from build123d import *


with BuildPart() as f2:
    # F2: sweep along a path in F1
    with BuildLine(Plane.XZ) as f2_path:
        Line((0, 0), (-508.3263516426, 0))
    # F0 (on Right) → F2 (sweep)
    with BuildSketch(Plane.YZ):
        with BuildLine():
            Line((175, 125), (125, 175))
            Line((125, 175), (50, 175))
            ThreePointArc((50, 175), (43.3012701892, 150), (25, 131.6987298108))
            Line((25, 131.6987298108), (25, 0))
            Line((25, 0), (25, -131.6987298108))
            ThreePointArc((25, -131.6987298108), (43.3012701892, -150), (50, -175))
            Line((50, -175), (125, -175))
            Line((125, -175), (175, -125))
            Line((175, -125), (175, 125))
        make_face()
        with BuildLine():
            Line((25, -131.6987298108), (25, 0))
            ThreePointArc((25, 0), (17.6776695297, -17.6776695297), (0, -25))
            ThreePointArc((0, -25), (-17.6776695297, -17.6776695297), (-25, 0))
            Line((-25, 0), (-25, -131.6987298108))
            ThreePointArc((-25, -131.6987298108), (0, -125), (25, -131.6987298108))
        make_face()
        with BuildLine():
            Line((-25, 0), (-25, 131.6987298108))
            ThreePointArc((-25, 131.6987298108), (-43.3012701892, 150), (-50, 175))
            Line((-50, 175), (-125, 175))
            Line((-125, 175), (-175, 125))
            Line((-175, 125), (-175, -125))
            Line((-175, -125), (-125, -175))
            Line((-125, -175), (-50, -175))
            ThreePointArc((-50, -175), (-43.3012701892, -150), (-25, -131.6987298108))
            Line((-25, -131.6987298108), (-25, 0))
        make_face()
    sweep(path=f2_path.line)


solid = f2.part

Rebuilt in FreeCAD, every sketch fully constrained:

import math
import FreeCAD as App
import Part
import Sketcher

V = App.Vector

doc = App.newDocument("Part")
body = doc.addObject("PartDesign::Body", "Body")

sketch1 = body.newObject("Sketcher::SketchObject", "Sketch")
sketch1.AttachmentSupport = (doc.getObject("YZ_Plane"), [""])
sketch1.MapMode = "FlatFace"
sketch1.addGeometry(Part.LineSegment(V(175, 125, 0), V(125, 175, 0)), False)
sketch1.addGeometry(Part.LineSegment(V(125, 175, 0), V(50, 175, 0)), False)
sketch1.addGeometry(Part.ArcOfCircle(Part.Circle(V(0, 175, 0), V(0, 0, 1), 50), math.radians(-60), math.radians(0)), False)
sketch1.addGeometry(Part.LineSegment(V(25, 131.69873, 0), V(25, 0, 0)), False)
sketch1.addGeometry(Part.ArcOfCircle(Part.Circle(V(0, 0, 0), V(0, 0, 1), 25), math.radians(-90), math.radians(0)), False)
sketch1.addGeometry(Part.ArcOfCircle(Part.Circle(V(0, 0, 0), V(0, 0, 1), 25), math.radians(180), math.radians(270)), False)
sketch1.addGeometry(Part.LineSegment(V(-25, 0, 0), V(-25, 131.69873, 0)), False)
sketch1.addGeometry(Part.ArcOfCircle(Part.Circle(V(0, 175, 0), V(0, 0, 1), 50), math.radians(180), math.radians(240)), False)
sketch1.addGeometry(Part.LineSegment(V(-50, 175, 0), V(-125, 175, 0)), False)
sketch1.addGeometry(Part.LineSegment(V(-125, 175, 0), V(-175, 125, 0)), False)
sketch1.addGeometry(Part.LineSegment(V(-175, 125, 0), V(-175, -125, 0)), False)
sketch1.addGeometry(Part.LineSegment(V(-175, -125, 0), V(-125, -175, 0)), False)
sketch1.addGeometry(Part.LineSegment(V(-125, -175, 0), V(-50, -175, 0)), False)
sketch1.addGeometry(Part.ArcOfCircle(Part.Circle(V(0, -175, 0), V(0, 0, 1), 50), math.radians(120), math.radians(180)), False)
sketch1.addGeometry(Part.ArcOfCircle(Part.Circle(V(0, -175, 0), V(0, 0, 1), 50), math.radians(60), math.radians(120)), False)
sketch1.addGeometry(Part.ArcOfCircle(Part.Circle(V(0, -175, 0), V(0, 0, 1), 50), math.radians(0), math.radians(60)), False)
sketch1.addGeometry(Part.LineSegment(V(50, -175, 0), V(125, -175, 0)), False)
sketch1.addGeometry(Part.LineSegment(V(125, -175, 0), V(175, -125, 0)), False)
sketch1.addGeometry(Part.LineSegment(V(175, -125, 0), V(175, 125, 0)), False)
sketch1.addConstraint(Sketcher.Constraint("Coincident", 0, 2, 1, 1))
sketch1.addConstraint(Sketcher.Constraint("Coincident", 1, 2, 2, 2))
sketch1.addConstraint(Sketcher.Constraint("Coincident", 2, 1, 3, 1))
sketch1.addConstraint(Sketcher.Constraint("Tangent", 3, 2, 4, 2))
sketch1.addConstraint(Sketcher.Constraint("Tangent", 4, 1, 5, 2))
sketch1.addConstraint(Sketcher.Constraint("Tangent", 5, 1, 6, 1))
sketch1.addConstraint(Sketcher.Constraint("Coincident", 6, 2, 7, 2))
sketch1.addConstraint(Sketcher.Constraint("Coincident", 7, 1, 8, 1))
sketch1.addConstraint(Sketcher.Constraint("Coincident", 8, 2, 9, 1))
sketch1.addConstraint(Sketcher.Constraint("Coincident", 9, 2, 10, 1))
sketch1.addConstraint(Sketcher.Constraint("Coincident", 10, 2, 11, 1))
sketch1.addConstraint(Sketcher.Constraint("Coincident", 11, 2, 12, 1))
sketch1.addConstraint(Sketcher.Constraint("Coincident", 12, 2, 13, 2))
sketch1.addConstraint(Sketcher.Constraint("Tangent", 13, 1, 14, 2))
sketch1.addConstraint(Sketcher.Constraint("Tangent", 14, 1, 15, 2))
sketch1.addConstraint(Sketcher.Constraint("Coincident", 15, 1, 16, 1))
sketch1.addConstraint(Sketcher.Constraint("Coincident", 16, 2, 17, 1))
sketch1.addConstraint(Sketcher.Constraint("Coincident", 17, 2, 18, 1))
sketch1.addConstraint(Sketcher.Constraint("Coincident", 18, 2, 0, 1))
sketch1.addConstraint(Sketcher.Constraint("Horizontal", 1))
sketch1.addConstraint(Sketcher.Constraint("Vertical", 3))
sketch1.addConstraint(Sketcher.Constraint("Vertical", 6))
sketch1.addConstraint(Sketcher.Constraint("Horizontal", 8))
sketch1.addConstraint(Sketcher.Constraint("Vertical", 10))
sketch1.addConstraint(Sketcher.Constraint("Horizontal", 12))
sketch1.addConstraint(Sketcher.Constraint("Horizontal", 16))
sketch1.addConstraint(Sketcher.Constraint("Vertical", 18))
sketch1.addConstraint(Sketcher.Constraint("Coincident", 4, 3, -1, 1))
sketch1.addConstraint(Sketcher.Constraint("Coincident", 7, 3, 2, 3))
sketch1.addConstraint(Sketcher.Constraint("Coincident", 15, 3, 13, 3))
sketch1.addConstraint(Sketcher.Constraint("Equal", 4, 5))
sketch1.addConstraint(Sketcher.Constraint("Equal", 2, 7))
sketch1.addConstraint(Sketcher.Constraint("Equal", 7, 13))
sketch1.addConstraint(Sketcher.Constraint("Symmetric", 2, 3, 13, 3, -1, 1))
sketch1.addConstraint(Sketcher.Constraint("Symmetric", 0, 2, 11, 2, -1, 1))
sketch1.addConstraint(Sketcher.Constraint("Symmetric", 8, 2, 16, 2, -1, 1))
sketch1.addConstraint(Sketcher.Constraint("Symmetric", 9, 2, 17, 2, -1, 1))
sketch1.addConstraint(Sketcher.Constraint("Symmetric", 1, 2, 7, 1, -2))
sketch1.addConstraint(Sketcher.Constraint("PointOnObject", 4, 1, -2))
sketch1.addConstraint(Sketcher.Constraint("Perpendicular", 0, 9))
sketch1.addConstraint(Sketcher.Constraint("Perpendicular", 9, 11))
sketch1.addConstraint(Sketcher.Constraint("Horizontal", 7, 3, 0, 2))
sketch1.addConstraint(Sketcher.Constraint("Horizontal", 13, 1, 14, 1))
sketch1.addConstraint(Sketcher.Constraint("Horizontal", 10, 2, 17, 2))
sketch1.addConstraint(Sketcher.Constraint("Vertical", 8, 2, 11, 2))
sketch1.addConstraint(Sketcher.Constraint("Vertical", 6, 2, 13, 1))
sketch1.addConstraint(Sketcher.Constraint("Radius", 2, 50.0))
sketch1.addConstraint(Sketcher.Constraint("Radius", 4, 25.0))
sketch1.addConstraint(Sketcher.Constraint("DistanceX", 1, 2, 1, 1, 75.0))
sketch1.addConstraint(Sketcher.Constraint("DistanceY", 10, 2, 10, 1, 250.0))
sketch1.addConstraint(Sketcher.Constraint("DistanceY", -1, 1, 2, 3, 175.0))

sketch2 = body.newObject("Sketcher::SketchObject", "Sketch001")
sketch2.AttachmentSupport = (doc.getObject("XY_Plane"), [""])
sketch2.MapMode = "FlatFace"
sketch2.addGeometry(Part.LineSegment(V(0, 0, 0), V(-508.326352, 0, 0)), False)
sketch2.addConstraint(Sketcher.Constraint("Horizontal", 0))
sketch2.addConstraint(Sketcher.Constraint("Coincident", 0, 1, -1, 1))
sketch2.addConstraint(Sketcher.Constraint("DistanceX", 0, 2, 0, 1, 508.326352))
doc.recompute()

additivepipe = body.newObject("PartDesign::AdditivePipe", "AdditivePipe")
additivepipe.Profile = sketch1
additivepipe.Spine = (sketch2, ["Edge1"])

doc.recompute()
